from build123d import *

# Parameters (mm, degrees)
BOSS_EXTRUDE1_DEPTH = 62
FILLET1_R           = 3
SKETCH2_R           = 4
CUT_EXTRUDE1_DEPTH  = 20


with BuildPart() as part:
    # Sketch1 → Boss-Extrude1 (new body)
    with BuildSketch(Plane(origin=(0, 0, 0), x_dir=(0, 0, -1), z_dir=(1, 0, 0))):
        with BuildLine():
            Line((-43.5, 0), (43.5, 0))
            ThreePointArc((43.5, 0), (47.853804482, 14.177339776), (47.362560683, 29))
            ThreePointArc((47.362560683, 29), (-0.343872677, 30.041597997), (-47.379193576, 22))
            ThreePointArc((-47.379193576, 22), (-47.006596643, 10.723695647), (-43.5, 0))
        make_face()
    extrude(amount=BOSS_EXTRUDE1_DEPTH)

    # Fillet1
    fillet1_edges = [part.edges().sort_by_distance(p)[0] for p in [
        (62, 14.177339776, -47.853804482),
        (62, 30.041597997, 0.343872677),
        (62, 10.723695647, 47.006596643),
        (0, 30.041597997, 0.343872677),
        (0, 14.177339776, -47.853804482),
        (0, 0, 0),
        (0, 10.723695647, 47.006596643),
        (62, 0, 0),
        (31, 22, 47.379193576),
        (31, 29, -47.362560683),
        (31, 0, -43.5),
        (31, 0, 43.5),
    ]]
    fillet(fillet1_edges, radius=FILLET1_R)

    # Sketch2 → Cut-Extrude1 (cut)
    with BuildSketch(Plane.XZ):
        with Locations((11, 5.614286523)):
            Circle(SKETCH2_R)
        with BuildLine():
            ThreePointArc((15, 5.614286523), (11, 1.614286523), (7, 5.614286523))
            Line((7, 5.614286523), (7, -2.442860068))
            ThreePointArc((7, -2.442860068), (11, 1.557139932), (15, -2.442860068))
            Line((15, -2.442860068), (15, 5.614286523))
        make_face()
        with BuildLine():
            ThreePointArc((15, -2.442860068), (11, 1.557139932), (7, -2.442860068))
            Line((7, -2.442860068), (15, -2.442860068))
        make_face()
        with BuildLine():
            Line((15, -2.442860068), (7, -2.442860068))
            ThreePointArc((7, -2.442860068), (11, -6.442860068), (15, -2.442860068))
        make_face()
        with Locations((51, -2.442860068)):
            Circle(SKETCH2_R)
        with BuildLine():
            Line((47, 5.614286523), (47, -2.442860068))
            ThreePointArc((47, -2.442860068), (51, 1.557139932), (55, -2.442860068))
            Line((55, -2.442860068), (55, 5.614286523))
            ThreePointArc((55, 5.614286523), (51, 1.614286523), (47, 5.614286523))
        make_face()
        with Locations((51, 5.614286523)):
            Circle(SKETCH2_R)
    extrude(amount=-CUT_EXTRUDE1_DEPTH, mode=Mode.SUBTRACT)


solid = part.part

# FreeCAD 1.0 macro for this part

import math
import FreeCAD as App
import Part
import Sketcher

V = App.Vector

doc = App.newDocument("Part")
body = doc.addObject("PartDesign::Body", "Body")

# Sketch on YZ plane
sketch1 = body.newObject("Sketcher::SketchObject", "Sketch")
sketch1.AttachmentSupport = (doc.getObject("YZ_Plane"), [""])
sketch1.MapMode = "FlatFace"
sketch1.addGeometry(Part.LineSegment(V(0, 44, 0), V(0, -44, 0)), False)
sketch1.addGeometry(Part.ArcOfCircle(Part.Circle(V(20, -3, 0), V(0, 0, 1), 45), math.radians(-117), math.radians(-79)), False)
sketch1.addGeometry(Part.ArcOfCircle(Part.Circle(V(-219, -18, 0), V(0, 0, 1), 250), math.radians(-7), math.radians(15)), False)
sketch1.addGeometry(Part.ArcOfCircle(Part.Circle(V(18, 8, 0), V(0, 0, 1), 40), math.radians(84), math.radians(116)), False)
sketch1.addConstraint(Sketcher.Constraint("Coincident", 0, 2, 1, 1))
sketch1.addConstraint(Sketcher.Constraint("Coincident", 1, 2, 2, 1))
sketch1.addConstraint(Sketcher.Constraint("Coincident", 2, 2, 3, 1))
sketch1.addConstraint(Sketcher.Constraint("Coincident", 3, 2, 0, 1))
sketch1.addConstraint(Sketcher.Constraint("Vertical", 0))
sketch1.addConstraint(Sketcher.Constraint("Symmetric", 0, 2, 3, 2, -1, 1))
sketch1.addConstraint(Sketcher.Constraint("Radius", 1, 45.0))
sketch1.addConstraint(Sketcher.Constraint("Radius", 2, 250.0))
sketch1.addConstraint(Sketcher.Constraint("Radius", 3, 40.0))
sketch1.addConstraint(Sketcher.Constraint("DistanceY", 0, 2, 0, 1, 87.0))
sketch1.addConstraint(Sketcher.Constraint("DistanceX", -1, 1, 1, 2, 29.0))
sketch1.addConstraint(Sketcher.Constraint("DistanceX", -1, 1, 2, 2, 22.0))
sketch1.addConstraint(Sketcher.Constraint("DistanceX", -1, 1, 1, 3, 20.118502))
sketch1.addConstraint(Sketcher.Constraint("DistanceY", 2, 3, -1, 1, 18.07718))
pad1 = body.newObject("PartDesign::Pad", "Pad")
pad1.Profile = sketch1
pad1.Length = 62
doc.recompute()

fillet = body.newObject("PartDesign::Fillet", "Fillet")
fillet.Base = (pad1, ["Edge1"])
fillet.UseAllEdges = True
fillet.Radius = 3

# Sketch on XZ plane
sketch2 = body.newObject("Sketcher::SketchObject", "Sketch001")
sketch2.AttachmentSupport = (doc.getObject("XZ_Plane"), [""])
sketch2.MapMode = "FlatFace"
sketch2.addGeometry(Part.LineSegment(V(7, 5.6, 0), V(7, -2.4, 0)), False)
sketch2.addGeometry(Part.ArcOfCircle(Part.Circle(V(11, -2.4, 0), V(0, 0, 1), 4), math.radians(180), math.radians(360)), False)
sketch2.addGeometry(Part.LineSegment(V(15, -2.4, 0), V(15, 5.6, 0)), False)
sketch2.addGeometry(Part.ArcOfCircle(Part.Circle(V(11, 5.6, 0), V(0, 0, 1), 4), math.radians(0), math.radians(180)), False)
sketch2.addGeometry(Part.ArcOfCircle(Part.Circle(V(51, -2.4, 0), V(0, 0, 1), 4), math.radians(180), math.radians(360)), False)
sketch2.addGeometry(Part.LineSegment(V(55, -2.4, 0), V(55, 5.6, 0)), False)
sketch2.addGeometry(Part.ArcOfCircle(Part.Circle(V(51, 5.6, 0), V(0, 0, 1), 4), math.radians(0), math.radians(180)), False)
sketch2.addGeometry(Part.LineSegment(V(47, 5.6, 0), V(47, -2.4, 0)), False)
sketch2.addConstraint(Sketcher.Constraint("Tangent", 0, 2, 1, 1))
sketch2.addConstraint(Sketcher.Constraint("Tangent", 1, 2, 2, 1))
sketch2.addConstraint(Sketcher.Constraint("Tangent", 2, 2, 3, 1))
sketch2.addConstraint(Sketcher.Constraint("Tangent", 3, 2, 0, 1))
sketch2.addConstraint(Sketcher.Constraint("Tangent", 4, 2, 5, 1))
sketch2.addConstraint(Sketcher.Constraint("Tangent", 5, 2, 6, 1))
sketch2.addConstraint(Sketcher.Constraint("Tangent", 6, 2, 7, 1))
sketch2.addConstraint(Sketcher.Constraint("Tangent", 7, 2, 4, 1))
sketch2.addConstraint(Sketcher.Constraint("Vertical", 0))
sketch2.addConstraint(Sketcher.Constraint("Vertical", 2))
sketch2.addConstraint(Sketcher.Constraint("Vertical", 5))
sketch2.addConstraint(Sketcher.Constraint("Vertical", 7))
sketch2.addConstraint(Sketcher.Constraint("Equal", 3, 4))
sketch2.addConstraint(Sketcher.Constraint("Horizontal", 1, 3, 4, 3))
sketch2.addConstraint(Sketcher.Constraint("Horizontal", 3, 3, 6, 3))
sketch2.addConstraint(Sketcher.Constraint("Radius", 1, 4.0))
sketch2.addConstraint(Sketcher.Constraint("DistanceX", -1, 1, 1, 3, 11.0))
sketch2.addConstraint(Sketcher.Constraint("DistanceX", -1, 1, 4, 3, 51.0))
sketch2.addConstraint(Sketcher.Constraint("DistanceY", 0, 2, 0, 1, 8.057147))
sketch2.addConstraint(Sketcher.Constraint("DistanceY", 1, 3, -1, 1, 2.44286))
pocket1 = body.newObject("PartDesign::Pocket", "Pocket")
pocket1.Profile = sketch2
pocket1.Length = 20

doc.recompute()
